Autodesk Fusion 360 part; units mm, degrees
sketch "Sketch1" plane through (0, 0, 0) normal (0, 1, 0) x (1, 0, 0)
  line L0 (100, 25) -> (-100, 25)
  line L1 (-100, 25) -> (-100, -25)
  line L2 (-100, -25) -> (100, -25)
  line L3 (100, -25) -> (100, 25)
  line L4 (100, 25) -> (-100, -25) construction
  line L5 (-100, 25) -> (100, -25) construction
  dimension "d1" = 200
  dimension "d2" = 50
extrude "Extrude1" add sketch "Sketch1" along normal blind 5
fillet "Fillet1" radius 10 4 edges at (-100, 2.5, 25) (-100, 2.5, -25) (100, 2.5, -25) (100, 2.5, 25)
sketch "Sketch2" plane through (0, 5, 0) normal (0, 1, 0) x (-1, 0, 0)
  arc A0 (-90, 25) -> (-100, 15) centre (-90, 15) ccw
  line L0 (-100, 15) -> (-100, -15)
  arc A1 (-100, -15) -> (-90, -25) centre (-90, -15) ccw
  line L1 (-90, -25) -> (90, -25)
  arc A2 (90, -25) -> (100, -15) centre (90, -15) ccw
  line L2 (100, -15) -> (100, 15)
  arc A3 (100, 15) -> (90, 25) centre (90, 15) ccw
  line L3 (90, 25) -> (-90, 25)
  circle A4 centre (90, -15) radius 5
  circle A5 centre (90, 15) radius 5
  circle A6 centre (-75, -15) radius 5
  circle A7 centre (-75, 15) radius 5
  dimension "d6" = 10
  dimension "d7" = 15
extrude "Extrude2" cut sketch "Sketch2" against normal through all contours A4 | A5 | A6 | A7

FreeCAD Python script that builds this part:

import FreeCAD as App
import Part
import Sketcher
Q = App.Units.Quantity


def edges_at(feature, points):
    """Names of the edges that pass closest to the given points."""
    edges = feature.Shape.Edges
    near = lambda p: min(range(len(edges)), key=lambda i: edges[i].distToShape(Part.Vertex(*p))[0])
    return sorted({f"Edge{near(p) + 1}" for p in points})


def add_polygon(sketch, points):
    """Adds a closed chain of lines whose ends are joined by coincident constraints."""
    first, n = sketch.GeometryCount, len(points)
    for a, b in zip(points, points[1:] + points[:1]):
        sketch.addGeometry(Part.LineSegment(App.Vector(*a, 0), App.Vector(*b, 0)), False)
    for i in range(n):
        sketch.addConstraint(Sketcher.Constraint("Coincident", first + i, 2, first + (i + 1) % n, 1))

doc = App.newDocument("Part")
body = doc.addObject("PartDesign::Body", "Body")

# Sketch on XZ plane
sketch1 = doc.addObject("Sketcher::SketchObject", "Sketch")
body.addObject(sketch1)
sketch1.AttachmentSupport = (doc.XZ_Plane, [""])
sketch1.MapMode = "FlatFace"
add_polygon(sketch1, [(100, 25), (100, -25), (-100, -25), (-100, 25)])  # lines 0-3
sketch1.addConstraint(Sketcher.Constraint("Vertical", 0))
sketch1.addConstraint(Sketcher.Constraint("Horizontal", 1))
sketch1.addConstraint(Sketcher.Constraint("Vertical", 2))
sketch1.addConstraint(Sketcher.Constraint("Horizontal", 3))
sketch1.addConstraint(Sketcher.Constraint("Symmetric", 0, 2, 2, 2, -1, 1))
sketch1.addConstraint(Sketcher.Constraint("DistanceX", 1, 2, 1, 1, Q("200 mm")))
sketch1.addConstraint(Sketcher.Constraint("DistanceY", 0, 2, 0, 1, Q("50 mm")))
pad1 = doc.addObject("PartDesign::Pad", "Pad")
body.addObject(pad1)
pad1.Profile = sketch1
pad1.Length = 5
pad1.Reversed = True
doc.recompute()

fillet = doc.addObject("PartDesign::Fillet", "Fillet")
body.addObject(fillet)
fillet.Base = (pad1, edges_at(pad1, [
    (-100, 2.5, 25),
    (-100, 2.5, -25),
    (100, 2.5, -25),
    (100, 2.5, 25),
]))
fillet.Radius = 10

# Sketch on XZ plane
sketch2 = doc.addObject("Sketcher::SketchObject", "Sketch001")
body.addObject(sketch2)
sketch2.AttachmentSupport = (doc.XZ_Plane, [""])
sketch2.MapMode = "FlatFace"
sketch2.AttachmentOffset = App.Placement(App.Vector(0, 0, -5), App.Rotation())
sketch2.addGeometry(Part.Circle(App.Vector(-90, -15, 0), App.Vector(0, 0, 1), 5), False)
sketch2.addGeometry(Part.Circle(App.Vector(-90, 15, 0), App.Vector(0, 0, 1), 5), False)
sketch2.addGeometry(Part.Circle(App.Vector(75, -15, 0), App.Vector(0, 0, 1), 5), False)
sketch2.addGeometry(Part.Circle(App.Vector(75, 15, 0), App.Vector(0, 0, 1), 5), False)
sketch2.addConstraint(Sketcher.Constraint("Equal", 0, 1))
sketch2.addConstraint(Sketcher.Constraint("Equal", 1, 2))
sketch2.addConstraint(Sketcher.Constraint("Equal", 2, 3))
sketch2.addConstraint(Sketcher.Constraint("Symmetric", 0, 3, 1, 3, -1))
sketch2.addConstraint(Sketcher.Constraint("Symmetric", 2, 3, 3, 3, -1))
sketch2.addConstraint(Sketcher.Constraint("Horizontal", 0, 3, 2, 3))
sketch2.addConstraint(Sketcher.Constraint("Diameter", 0, Q("10 mm")))
sketch2.addConstraint(Sketcher.Constraint("DistanceY", 0, 3, -1, 1, Q("15 mm")))
sketch2.addConstraint(Sketcher.Constraint("DistanceX", 0, 3, -1, 1, Q("90 mm")))
sketch2.addConstraint(Sketcher.Constraint("DistanceX", -1, 1, 2, 3, Q("75 mm")))
pocket1 = doc.addObject("PartDesign::Pocket", "Pocket")
body.addObject(pocket1)
pocket1.Profile = sketch2
pocket1.Type = "ThroughAll"
pocket1.Reversed = True

doc.recompute()
